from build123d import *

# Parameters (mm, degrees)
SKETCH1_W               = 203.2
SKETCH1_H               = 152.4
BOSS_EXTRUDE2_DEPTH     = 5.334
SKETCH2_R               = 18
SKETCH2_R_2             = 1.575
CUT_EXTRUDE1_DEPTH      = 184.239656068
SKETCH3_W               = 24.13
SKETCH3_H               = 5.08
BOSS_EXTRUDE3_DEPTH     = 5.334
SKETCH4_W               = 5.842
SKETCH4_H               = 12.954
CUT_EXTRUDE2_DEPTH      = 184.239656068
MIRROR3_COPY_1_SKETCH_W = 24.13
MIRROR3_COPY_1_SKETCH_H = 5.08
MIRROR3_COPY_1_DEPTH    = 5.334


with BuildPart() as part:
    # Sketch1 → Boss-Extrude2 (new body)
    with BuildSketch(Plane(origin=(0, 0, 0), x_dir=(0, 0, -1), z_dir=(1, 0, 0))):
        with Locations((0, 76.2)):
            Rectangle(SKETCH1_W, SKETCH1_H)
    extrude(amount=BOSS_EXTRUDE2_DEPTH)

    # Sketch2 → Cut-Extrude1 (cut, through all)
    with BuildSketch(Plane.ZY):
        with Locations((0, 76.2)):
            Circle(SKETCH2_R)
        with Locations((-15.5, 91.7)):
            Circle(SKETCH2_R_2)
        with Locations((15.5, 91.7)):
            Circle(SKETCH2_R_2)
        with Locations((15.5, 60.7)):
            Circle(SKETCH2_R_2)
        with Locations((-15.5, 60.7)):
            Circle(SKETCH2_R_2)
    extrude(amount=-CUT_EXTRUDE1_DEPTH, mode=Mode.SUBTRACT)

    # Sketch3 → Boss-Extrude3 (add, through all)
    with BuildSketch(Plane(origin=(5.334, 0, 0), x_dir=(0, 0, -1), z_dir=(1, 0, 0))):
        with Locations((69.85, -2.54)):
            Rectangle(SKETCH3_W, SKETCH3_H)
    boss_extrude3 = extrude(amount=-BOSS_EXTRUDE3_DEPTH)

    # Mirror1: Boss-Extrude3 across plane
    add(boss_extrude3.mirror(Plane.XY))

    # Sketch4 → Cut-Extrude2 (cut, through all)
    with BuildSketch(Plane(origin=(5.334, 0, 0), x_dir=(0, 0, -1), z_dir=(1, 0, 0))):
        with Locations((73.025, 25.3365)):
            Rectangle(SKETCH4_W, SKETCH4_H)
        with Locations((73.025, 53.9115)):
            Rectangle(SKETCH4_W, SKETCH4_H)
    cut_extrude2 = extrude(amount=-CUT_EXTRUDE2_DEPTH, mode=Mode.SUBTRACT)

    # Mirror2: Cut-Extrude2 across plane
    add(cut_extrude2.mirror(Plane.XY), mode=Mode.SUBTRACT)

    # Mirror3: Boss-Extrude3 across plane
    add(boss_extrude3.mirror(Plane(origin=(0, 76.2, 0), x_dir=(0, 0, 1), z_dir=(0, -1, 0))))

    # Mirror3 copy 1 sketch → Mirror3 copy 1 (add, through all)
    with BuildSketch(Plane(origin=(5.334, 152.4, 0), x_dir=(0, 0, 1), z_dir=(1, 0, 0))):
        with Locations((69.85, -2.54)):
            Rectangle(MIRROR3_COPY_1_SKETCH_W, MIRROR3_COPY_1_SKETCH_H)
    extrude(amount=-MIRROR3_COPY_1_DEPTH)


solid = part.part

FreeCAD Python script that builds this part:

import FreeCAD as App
import Part
import Sketcher

V = App.Vector
Q = App.Units.Quantity


def add_polygon(sketch, points):
    """Adds a closed chain of lines whose ends are joined by coincident constraints."""
    first, n = sketch.GeometryCount, len(points)
    for a, b in zip(points, points[1:] + points[:1]):
        sketch.addGeometry(Part.LineSegment(App.Vector(*a, 0), App.Vector(*b, 0)), False)
    for i in range(n):
        sketch.addConstraint(Sketcher.Constraint("Coincident", first + i, 2, first + (i + 1) % n, 1))

doc = App.newDocument("Part")
body = doc.addObject("PartDesign::Body", "Body")

sketch1 = body.newObject("Sketcher::SketchObject", "Sketch")
sketch1.AttachmentSupport = (doc.getObject("YZ_Plane"), [""])
sketch1.MapMode = "FlatFace"
add_polygon(sketch1, [(152, 102), (0, 102), (0, -102), (152, -102)])
sketch1.addConstraint(Sketcher.Constraint("Horizontal", 0))
sketch1.addConstraint(Sketcher.Constraint("Vertical", 1))
sketch1.addConstraint(Sketcher.Constraint("Horizontal", 2))
sketch1.addConstraint(Sketcher.Constraint("Vertical", 3))
sketch1.addConstraint(Sketcher.Constraint("Symmetric", 0, 2, 1, 2, -1, 1))
sketch1.addConstraint(Sketcher.Constraint("DistanceX", 0, 2, 0, 1, Q("6 in")))
sketch1.addConstraint(Sketcher.Constraint("DistanceY", 1, 2, 1, 1, Q("8 in")))
pad1 = body.newObject("PartDesign::Pad", "Pad")
pad1.Profile = sketch1
pad1.Length = Q("0.21 in")

sketch2 = body.newObject("Sketcher::SketchObject", "Sketch001")
sketch2.AttachmentSupport = (doc.getObject("YZ_Plane"), [""])
sketch2.MapMode = "FlatFace"
sketch2.addGeometry(Part.Circle(V(76.2, 0, 0), V(0, 0, 1), 18), False)
sketch2.addGeometry(Part.Circle(V(91.7, -15.5, 0), V(0, 0, 1), 1.6), False)
sketch2.addGeometry(Part.Circle(V(91.7, 15.5, 0), V(0, 0, 1), 1.6), False)
sketch2.addGeometry(Part.Circle(V(60.7, 15.5, 0), V(0, 0, 1), 1.6), False)
sketch2.addGeometry(Part.Circle(V(60.7, -15.5, 0), V(0, 0, 1), 1.6), False)
sketch2.addConstraint(Sketcher.Constraint("Equal", 1, 2))
sketch2.addConstraint(Sketcher.Constraint("Equal", 2, 3))
sketch2.addConstraint(Sketcher.Constraint("Equal", 3, 4))
sketch2.addConstraint(Sketcher.Constraint("Symmetric", 1, 3, 2, 3, -1))
sketch2.addConstraint(Sketcher.Constraint("Symmetric", 3, 3, 4, 3, -1))
sketch2.addConstraint(Sketcher.Constraint("PointOnObject", 0, 3, -1))
sketch2.addConstraint(Sketcher.Constraint("Horizontal", 2, 3, 3, 3))
sketch2.addConstraint(Sketcher.Constraint("DistanceX", -1, 1, 0, 3, Q("3 in")))
sketch2.addConstraint(Sketcher.Constraint("Diameter", 0, 36.0))
sketch2.addConstraint(Sketcher.Constraint("Diameter", 1, 3.15))
sketch2.addConstraint(Sketcher.Constraint("DistanceX", -1, 1, 1, 3, 91.7))
sketch2.addConstraint(Sketcher.Constraint("DistanceY", 1, 3, -1, 1, 15.5))
sketch2.addConstraint(Sketcher.Constraint("DistanceX", -1, 1, 3, 3, 60.7))
pocket1 = body.newObject("PartDesign::Pocket", "Pocket")
pocket1.Profile = sketch2
pocket1.Type = "ThroughAll"
pocket1.Reversed = True

sketch3 = body.newObject("Sketcher::SketchObject", "Sketch002")
sketch3.AttachmentSupport = (doc.getObject("YZ_Plane"), [""])
sketch3.MapMode = "FlatFace"
sketch3.AttachmentOffset = App.Placement(V(0, 0, 0.21 * 25.4), App.Rotation())
add_polygon(sketch3, [(0, -58), (-5, -58), (-5, -82), (0, -82)])
sketch3.addConstraint(Sketcher.Constraint("Horizontal", 0))
sketch3.addConstraint(Sketcher.Constraint("Vertical", 1))
sketch3.addConstraint(Sketcher.Constraint("Horizontal", 2))
sketch3.addConstraint(Sketcher.Constraint("Vertical", 3))
sketch3.addConstraint(Sketcher.Constraint("PointOnObject", 2, 2, -2))
sketch3.addConstraint(Sketcher.Constraint("DistanceX", 0, 2, 0, 1, Q("0.2 in")))
sketch3.addConstraint(Sketcher.Constraint("DistanceY", 1, 2, 1, 1, Q("0.95 in")))
sketch3.addConstraint(Sketcher.Constraint("DistanceY", 0, 2, -1, 1, Q("2.275 in")))
pad2 = body.newObject("PartDesign::Pad", "Pad001")
pad2.Profile = sketch3
pad2.Length = Q("0.21 in")
pad2.Reversed = True
doc.recompute()

mirrored = body.newObject("PartDesign::Mirrored", "Mirrored")
mirrored.Originals = [pad2]
mirrored.MirrorPlane = (doc.getObject("XY_Plane"), [""])
body.Tip = mirrored

sketch4 = body.newObject("Sketcher::SketchObject", "Sketch003")
sketch4.AttachmentSupport = (doc.getObject("YZ_Plane"), [""])
sketch4.MapMode = "FlatFace"
sketch4.AttachmentOffset = App.Placement(V(0, 0, 0.21 * 25.4), App.Rotation())
add_polygon(sketch4, [(32, -70), (19, -70), (19, -76), (32, -76)])
add_polygon(sketch4, [(60, -70), (47, -70), (47, -76), (60, -76)])
sketch4.addConstraint(Sketcher.Constraint("Horizontal", 0))
sketch4.addConstraint(Sketcher.Constraint("Vertical", 1))
sketch4.addConstraint(Sketcher.Constraint("Horizontal", 2))
sketch4.addConstraint(Sketcher.Constraint("Vertical", 3))
sketch4.addConstraint(Sketcher.Constraint("Horizontal", 4))
sketch4.addConstraint(Sketcher.Constraint("Vertical", 5))
sketch4.addConstraint(Sketcher.Constraint("Horizontal", 6))
sketch4.addConstraint(Sketcher.Constraint("Vertical", 7))
sketch4.addConstraint(Sketcher.Constraint("Horizontal", 3, 2, 4, 2))
sketch4.addConstraint(Sketcher.Constraint("Horizontal", 2, 2, 5, 2))
sketch4.addConstraint(Sketcher.Constraint("Equal", 2, 4))
sketch4.addConstraint(Sketcher.Constraint("DistanceX", 0, 2, 0, 1, Q("0.51 in")))
sketch4.addConstraint(Sketcher.Constraint("DistanceY", 1, 2, 1, 1, Q("0.23 in")))
sketch4.addConstraint(Sketcher.Constraint("DistanceY", 0, 2, -1, 1, Q("2.76 in")))
sketch4.addConstraint(Sketcher.Constraint("DistanceX", 3, 2, 4, 2, Q("0.615 in")))
sketch4.addConstraint(Sketcher.Constraint("DistanceX", -1, 1, 0, 2, Q("0.7425 in")))
pocket2 = body.newObject("PartDesign::Pocket", "Pocket001")
pocket2.Profile = sketch4
pocket2.Type = "ThroughAll"
doc.recompute()

mirrored2 = body.newObject("PartDesign::Mirrored", "Mirrored001")
mirrored2.Originals = [pocket2]
mirrored2.MirrorPlane = (doc.getObject("XY_Plane"), [""])
body.Tip = mirrored2
doc.recompute()

datumplane = body.newObject("PartDesign::Plane", "DatumPlane")
datumplane.AttachmentSupport = (doc.getObject("XZ_Plane"), [""])
datumplane.MapMode = "FlatFace"
datumplane.AttachmentOffset = App.Placement(V(0, 0, -3 * 25.4), App.Rotation())
mirrored3 = body.newObject("PartDesign::Mirrored", "Mirrored002")
mirrored3.Originals = [pad2]
mirrored3.MirrorPlane = (datumplane, [""])
body.Tip = mirrored3

sketch5 = body.newObject("Sketcher::SketchObject", "Sketch004")
sketch5.AttachmentSupport = (doc.getObject("YZ_Plane"), [""])
sketch5.MapMode = "FlatFace"
sketch5.AttachmentOffset = App.Placement(V(0, 0, 0.21 * 25.4), App.Rotation())
add_polygon(sketch5, [(152, 58), (157, 58), (157, 82), (152, 82)])
sketch5.addConstraint(Sketcher.Constraint("Horizontal", 0))
sketch5.addConstraint(Sketcher.Constraint("Vertical", 1))
sketch5.addConstraint(Sketcher.Constraint("Horizontal", 2))
sketch5.addConstraint(Sketcher.Constraint("Vertical", 3))
sketch5.addConstraint(Sketcher.Constraint("DistanceX", 0, 1, 0, 2, Q("0.2 in")))
sketch5.addConstraint(Sketcher.Constraint("DistanceX", -1, 1, 2, 2, Q("6 in")))
sketch5.addConstraint(Sketcher.Constraint("DistanceY", 1, 1, 1, 2, Q("0.95 in")))
sketch5.addConstraint(Sketcher.Constraint("DistanceY", -1, 1, 0, 2, Q("2.275 in")))
pad3 = body.newObject("PartDesign::Pad", "Pad002")
pad3.Profile = sketch5
pad3.Length = Q("0.21 in")
pad3.Reversed = True

doc.recompute()
